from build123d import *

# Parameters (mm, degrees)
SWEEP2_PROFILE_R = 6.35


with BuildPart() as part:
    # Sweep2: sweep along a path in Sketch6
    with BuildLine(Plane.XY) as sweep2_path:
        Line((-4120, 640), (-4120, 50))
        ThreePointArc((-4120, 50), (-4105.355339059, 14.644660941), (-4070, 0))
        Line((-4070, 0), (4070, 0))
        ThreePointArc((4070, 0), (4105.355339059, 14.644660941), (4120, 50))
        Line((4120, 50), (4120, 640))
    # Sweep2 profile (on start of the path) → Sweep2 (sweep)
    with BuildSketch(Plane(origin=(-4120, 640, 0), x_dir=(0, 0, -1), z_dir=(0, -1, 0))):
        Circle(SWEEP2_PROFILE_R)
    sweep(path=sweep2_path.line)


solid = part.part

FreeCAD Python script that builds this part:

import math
import FreeCAD as App
import Part
import Sketcher
from FreeCAD import Vector
Q = App.Units.Quantity

doc = App.newDocument("Part")
params = doc.addObject("Spreadsheet::Sheet", "Params")
for row, (alias, value) in enumerate([
    ("sketch1_diameter", "12.7 mm"),
    ("sketch2_radius", "50 mm"),
    ("sketch2_width", "8140 mm"),
    ("sketch2_height", "590 mm"),
], start=1):
    params.set(f"A{row}", alias)
    params.set(f"B{row}", "=" + value)
    params.setAlias(f"B{row}", alias)

body = doc.addObject("PartDesign::Body", "Body")

sketch1 = body.newObject("Sketcher::SketchObject", "Sketch")
sketch1.AttachmentSupport = (doc.getObject("XZ_Plane"), [""])
sketch1.MapMode = "FlatFace"
sketch1.AttachmentOffset = App.Placement(Vector(0, 0, -640), App.Rotation())
sketch1.addGeometry(Part.Circle(Vector(-4120, 0, 0), Vector(0, 0, 1), 6.35), False)
sketch1.addConstraint(Sketcher.Constraint("PointOnObject", 0, 3, -1))
sketch1.addConstraint(Sketcher.Constraint("Diameter", 0, Q("12.7 mm")))
sketch1.addConstraint(Sketcher.Constraint("DistanceX", 0, 3, -1, 1, Q("4120 mm")))
sketch1.setExpression("Constraints[1]", "Params.sketch1_diameter")

sketch2 = body.newObject("Sketcher::SketchObject", "Sketch001")
sketch2.AttachmentSupport = (doc.getObject("XY_Plane"), [""])
sketch2.MapMode = "FlatFace"
sketch2.addGeometry(Part.LineSegment(Vector(-4120, 640, 0), Vector(-4120, 50, 0)), False)
sketch2.addGeometry(Part.ArcOfCircle(Part.Circle(Vector(-4070, 50, 0), Vector(0, 0, 1), 50), math.radians(-180), math.radians(-90)), False)
sketch2.addGeometry(Part.LineSegment(Vector(-4070, 0, 0), Vector(4070, 0, 0)), False)
sketch2.addGeometry(Part.ArcOfCircle(Part.Circle(Vector(4070, 50, 0), Vector(0, 0, 1), 50), math.radians(-90), math.radians(0)), False)
sketch2.addGeometry(Part.LineSegment(Vector(4120, 50, 0), Vector(4120, 640, 0)), False)
sketch2.addConstraint(Sketcher.Constraint("Tangent", 0, 2, 1, 1))
sketch2.addConstraint(Sketcher.Constraint("Tangent", 1, 2, 2, 1))
sketch2.addConstraint(Sketcher.Constraint("Tangent", 2, 2, 3, 1))
sketch2.addConstraint(Sketcher.Constraint("Tangent", 3, 2, 4, 1))
sketch2.addConstraint(Sketcher.Constraint("Vertical", 0))
sketch2.addConstraint(Sketcher.Constraint("Horizontal", 2))
sketch2.addConstraint(Sketcher.Constraint("Vertical", 4))
sketch2.addConstraint(Sketcher.Constraint("Equal", 1, 3))
sketch2.addConstraint(Sketcher.Constraint("Symmetric", 1, 2, 2, 2, -1, 1))
sketch2.addConstraint(Sketcher.Constraint("Horizontal", 0, 1, 4, 2))
sketch2.addConstraint(Sketcher.Constraint("Radius", 1, Q("50 mm")))
sketch2.addConstraint(Sketcher.Constraint("DistanceX", 2, 1, 2, 2, Q("8140 mm")))
sketch2.addConstraint(Sketcher.Constraint("DistanceY", 0, 2, 0, 1, Q("590 mm")))
sketch2.setExpression("Constraints[10]", "Params.sketch2_radius")
sketch2.setExpression("Constraints[11]", "Params.sketch2_width")
sketch2.setExpression("Constraints[12]", "Params.sketch2_height")
doc.recompute()

additivepipe = body.newObject("PartDesign::AdditivePipe", "AdditivePipe")
additivepipe.Profile = sketch1
additivepipe.Spine = (sketch2, ["Edge1", "Edge2", "Edge3", "Edge4", "Edge5"])

doc.recompute()
